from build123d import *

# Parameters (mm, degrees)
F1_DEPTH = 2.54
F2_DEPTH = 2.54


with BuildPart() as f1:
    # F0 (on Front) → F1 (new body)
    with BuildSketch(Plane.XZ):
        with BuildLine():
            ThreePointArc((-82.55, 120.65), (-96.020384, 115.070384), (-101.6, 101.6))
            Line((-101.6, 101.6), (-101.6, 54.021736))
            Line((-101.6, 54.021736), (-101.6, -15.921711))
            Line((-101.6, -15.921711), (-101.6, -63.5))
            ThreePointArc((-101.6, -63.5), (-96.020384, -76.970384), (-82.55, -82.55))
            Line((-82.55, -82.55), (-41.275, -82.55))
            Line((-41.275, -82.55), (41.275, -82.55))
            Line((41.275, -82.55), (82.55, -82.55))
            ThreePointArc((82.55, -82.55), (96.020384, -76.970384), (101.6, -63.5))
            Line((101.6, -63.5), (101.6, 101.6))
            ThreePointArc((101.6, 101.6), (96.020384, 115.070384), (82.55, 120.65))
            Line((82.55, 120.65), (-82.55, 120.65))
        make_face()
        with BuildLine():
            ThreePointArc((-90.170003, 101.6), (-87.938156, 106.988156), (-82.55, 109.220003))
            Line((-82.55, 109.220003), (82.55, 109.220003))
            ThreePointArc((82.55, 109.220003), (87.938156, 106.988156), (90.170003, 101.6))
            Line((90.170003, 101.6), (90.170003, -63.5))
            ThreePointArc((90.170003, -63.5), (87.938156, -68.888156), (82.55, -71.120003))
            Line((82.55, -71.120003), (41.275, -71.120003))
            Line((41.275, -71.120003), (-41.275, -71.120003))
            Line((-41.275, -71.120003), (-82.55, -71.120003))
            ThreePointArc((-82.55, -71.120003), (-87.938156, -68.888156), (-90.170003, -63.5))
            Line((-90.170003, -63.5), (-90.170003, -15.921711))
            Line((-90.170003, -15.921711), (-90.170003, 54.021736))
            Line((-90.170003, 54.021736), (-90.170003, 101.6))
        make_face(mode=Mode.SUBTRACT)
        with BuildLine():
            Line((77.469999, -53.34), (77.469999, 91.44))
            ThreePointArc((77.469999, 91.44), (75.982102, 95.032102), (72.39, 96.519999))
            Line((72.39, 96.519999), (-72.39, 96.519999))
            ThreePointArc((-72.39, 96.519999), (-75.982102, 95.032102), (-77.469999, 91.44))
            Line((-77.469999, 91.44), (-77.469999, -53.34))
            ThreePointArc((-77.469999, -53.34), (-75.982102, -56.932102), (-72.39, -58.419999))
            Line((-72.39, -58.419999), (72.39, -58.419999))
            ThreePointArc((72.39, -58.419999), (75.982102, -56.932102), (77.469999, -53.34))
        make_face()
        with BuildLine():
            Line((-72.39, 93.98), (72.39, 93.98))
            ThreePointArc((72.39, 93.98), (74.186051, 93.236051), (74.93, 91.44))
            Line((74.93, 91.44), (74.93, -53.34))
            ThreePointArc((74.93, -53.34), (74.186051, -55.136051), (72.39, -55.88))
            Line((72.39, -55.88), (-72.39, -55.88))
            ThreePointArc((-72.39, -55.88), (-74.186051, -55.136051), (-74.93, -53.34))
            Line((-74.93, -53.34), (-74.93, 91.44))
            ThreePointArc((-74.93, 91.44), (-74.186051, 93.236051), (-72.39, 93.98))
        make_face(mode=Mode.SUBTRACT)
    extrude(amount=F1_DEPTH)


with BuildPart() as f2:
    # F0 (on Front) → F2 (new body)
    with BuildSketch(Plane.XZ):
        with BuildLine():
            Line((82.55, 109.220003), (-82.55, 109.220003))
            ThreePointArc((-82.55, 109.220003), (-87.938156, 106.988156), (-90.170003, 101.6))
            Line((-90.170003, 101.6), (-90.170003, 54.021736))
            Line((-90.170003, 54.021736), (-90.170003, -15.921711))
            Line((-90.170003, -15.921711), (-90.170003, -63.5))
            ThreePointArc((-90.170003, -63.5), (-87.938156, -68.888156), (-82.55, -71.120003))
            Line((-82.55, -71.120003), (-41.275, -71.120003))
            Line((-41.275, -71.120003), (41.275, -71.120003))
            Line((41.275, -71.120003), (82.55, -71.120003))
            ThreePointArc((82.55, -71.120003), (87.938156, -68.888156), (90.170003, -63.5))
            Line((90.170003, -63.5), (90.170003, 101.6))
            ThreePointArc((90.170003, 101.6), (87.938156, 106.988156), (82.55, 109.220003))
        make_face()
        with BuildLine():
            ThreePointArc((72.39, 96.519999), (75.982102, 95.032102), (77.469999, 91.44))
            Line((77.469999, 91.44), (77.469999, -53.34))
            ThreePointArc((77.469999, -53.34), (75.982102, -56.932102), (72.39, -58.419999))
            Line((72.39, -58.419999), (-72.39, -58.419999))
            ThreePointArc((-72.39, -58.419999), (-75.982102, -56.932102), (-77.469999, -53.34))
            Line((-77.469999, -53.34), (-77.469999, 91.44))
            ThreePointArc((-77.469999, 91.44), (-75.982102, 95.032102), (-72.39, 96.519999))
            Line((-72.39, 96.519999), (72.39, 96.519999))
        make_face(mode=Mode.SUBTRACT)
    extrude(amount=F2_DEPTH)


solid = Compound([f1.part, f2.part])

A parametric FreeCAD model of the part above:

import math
import FreeCAD as App
import Part
import Sketcher

V = App.Vector
Q = App.Units.Quantity

doc = App.newDocument("Part")
body = doc.addObject("PartDesign::Body", "Body")
body.AllowCompound = True

# Sketch on XZ plane
sketch1 = body.newObject("Sketcher::SketchObject", "Sketch")
sketch1.AttachmentSupport = (doc.getObject("XZ_Plane"), [""])
sketch1.MapMode = "FlatFace"
sketch1.addGeometry([
    Part.ArcOfCircle(Part.Circle(V(-82.5, 101.6, 0), V(0, 0, 1), 19.1), math.radians(90), math.radians(180)),  # 0
    Part.LineSegment(V(-101.6, 101.6, 0), V(-101.6, -63.5, 0)),  # 1
    Part.ArcOfCircle(Part.Circle(V(-82.5, -63.5, 0), V(0, 0, 1), 19.1), math.radians(-180), math.radians(-90)),  # 2
    Part.LineSegment(V(-82.5, -82.5, 0), V(82.5, -82.5, 0)),  # 3
    Part.ArcOfCircle(Part.Circle(V(82.5, -63.5, 0), V(0, 0, 1), 19.1), math.radians(-90), math.radians(0)),  # 4
    Part.LineSegment(V(101.6, -63.5, 0), V(101.6, 101.6, 0)),  # 5
    Part.ArcOfCircle(Part.Circle(V(82.5, 101.6, 0), V(0, 0, 1), 19.1), math.radians(0), math.radians(90)),  # 6
    Part.LineSegment(V(82.5, 120.7, 0), V(-82.5, 120.7, 0)),  # 7
    Part.LineSegment(V(-90.2, -63.5, 0), V(-90.2, 101.6, 0)),  # 8
    Part.ArcOfCircle(Part.Circle(V(-82.6, 101.6, 0), V(0, 0, 1), 7.6), math.radians(90), math.radians(180)),  # 9
    Part.LineSegment(V(-82.5, 109.2, 0), V(82.5, 109.2, 0)),  # 10
    Part.ArcOfCircle(Part.Circle(V(82.6, 101.6, 0), V(0, 0, 1), 7.6), math.radians(0), math.radians(90)),  # 11
    Part.LineSegment(V(90.2, 101.6, 0), V(90.2, -63.5, 0)),  # 12
    Part.ArcOfCircle(Part.Circle(V(82.6, -63.5, 0), V(0, 0, 1), 7.6), math.radians(-90), math.radians(0)),  # 13
    Part.LineSegment(V(82.5, -71.1, 0), V(-82.5, -71.1, 0)),  # 14
    Part.ArcOfCircle(Part.Circle(V(-82.6, -63.5, 0), V(0, 0, 1), 7.6), math.radians(180), math.radians(270)),  # 15
    Part.LineSegment(V(77.5, -53.3, 0), V(77.5, 91.4, 0)),  # 16
    Part.ArcOfCircle(Part.Circle(V(72.4, 91.4, 0), V(0, 0, 1), 5.1), math.radians(0), math.radians(90)),  # 17
    Part.LineSegment(V(72.4, 96.5, 0), V(-72.4, 96.5, 0)),  # 18
    Part.ArcOfCircle(Part.Circle(V(-72.4, 91.4, 0), V(0, 0, 1), 5.1), math.radians(90), math.radians(180)),  # 19
    Part.LineSegment(V(-77.5, 91.4, 0), V(-77.5, -53.3, 0)),  # 20
    Part.ArcOfCircle(Part.Circle(V(-72.4, -53.3, 0), V(0, 0, 1), 5.1), math.radians(180), math.radians(270)),  # 21
    Part.LineSegment(V(-72.4, -58.4, 0), V(72.4, -58.4, 0)),  # 22
    Part.ArcOfCircle(Part.Circle(V(72.4, -53.3, 0), V(0, 0, 1), 5.1), math.radians(-90), math.radians(0)),  # 23
    Part.ArcOfCircle(Part.Circle(V(-72.4, 91.4, 0), V(0, 0, 1), 2.5), math.radians(90), math.radians(180)),  # 24
    Part.LineSegment(V(-72.4, 94, 0), V(72.4, 94, 0)),  # 25
    Part.ArcOfCircle(Part.Circle(V(72.4, 91.4, 0), V(0, 0, 1), 2.5), math.radians(0), math.radians(90)),  # 26
    Part.LineSegment(V(74.9, 91.4, 0), V(74.9, -53.3, 0)),  # 27
    Part.ArcOfCircle(Part.Circle(V(72.4, -53.3, 0), V(0, 0, 1), 2.5), math.radians(-90), math.radians(0)),  # 28
    Part.LineSegment(V(72.4, -55.9, 0), V(-72.4, -55.9, 0)),  # 29
    Part.ArcOfCircle(Part.Circle(V(-72.4, -53.3, 0), V(0, 0, 1), 2.5), math.radians(-180), math.radians(-90)),  # 30
    Part.LineSegment(V(-74.9, -53.3, 0), V(-74.9, 91.4, 0)),  # 31
], False)
sketch1.addConstraint([
    Sketcher.Constraint("Tangent", 0, 2, 1, 1),
    Sketcher.Constraint("Tangent", 1, 2, 2, 1),
    Sketcher.Constraint("Tangent", 2, 2, 3, 1),
    Sketcher.Constraint("Tangent", 3, 2, 4, 1),
    Sketcher.Constraint("Tangent", 4, 2, 5, 1),
    Sketcher.Constraint("Tangent", 5, 2, 6, 1),
    Sketcher.Constraint("Tangent", 6, 2, 7, 1),
    Sketcher.Constraint("Tangent", 7, 2, 0, 1),
    Sketcher.Constraint("Tangent", 8, 2, 9, 2),
    Sketcher.Constraint("Tangent", 9, 1, 10, 1),
    Sketcher.Constraint("Tangent", 10, 2, 11, 2),
    Sketcher.Constraint("Tangent", 11, 1, 12, 1),
    Sketcher.Constraint("Tangent", 12, 2, 13, 2),
    Sketcher.Constraint("Tangent", 13, 1, 14, 1),
    Sketcher.Constraint("Tangent", 14, 2, 15, 2),
    Sketcher.Constraint("Tangent", 15, 1, 8, 1),
    Sketcher.Constraint("Tangent", 16, 2, 17, 1),
    Sketcher.Constraint("Tangent", 17, 2, 18, 1),
    Sketcher.Constraint("Tangent", 18, 2, 19, 1),
    Sketcher.Constraint("Tangent", 19, 2, 20, 1),
    Sketcher.Constraint("Tangent", 20, 2, 21, 1),
    Sketcher.Constraint("Tangent", 21, 2, 22, 1),
    Sketcher.Constraint("Tangent", 22, 2, 23, 1),
    Sketcher.Constraint("Tangent", 23, 2, 16, 1),
    Sketcher.Constraint("Tangent", 24, 1, 25, 1),
    Sketcher.Constraint("Tangent", 25, 2, 26, 2),
    Sketcher.Constraint("Tangent", 26, 1, 27, 1),
    Sketcher.Constraint("Tangent", 27, 2, 28, 2),
    Sketcher.Constraint("Tangent", 28, 1, 29, 1),
    Sketcher.Constraint("Tangent", 29, 2, 30, 2),
    Sketcher.Constraint("Tangent", 30, 1, 31, 1),
    Sketcher.Constraint("Tangent", 31, 2, 24, 2),
    Sketcher.Constraint("Vertical", 1),
    Sketcher.Constraint("Horizontal", 3),
    Sketcher.Constraint("Vertical", 5),
    Sketcher.Constraint("Horizontal", 7),
    Sketcher.Constraint("Vertical", 8),
    Sketcher.Constraint("Horizontal", 10),
    Sketcher.Constraint("Vertical", 12),
    Sketcher.Constraint("Horizontal", 14),
    Sketcher.Constraint("Vertical", 16),
    Sketcher.Constraint("Horizontal", 18),
    Sketcher.Constraint("Vertical", 20),
    Sketcher.Constraint("Horizontal", 22),
    Sketcher.Constraint("Horizontal", 25),
    Sketcher.Constraint("Vertical", 27),
    Sketcher.Constraint("Horizontal", 29),
    Sketcher.Constraint("Vertical", 31),
    Sketcher.Constraint("Coincident", 9, 3, 0, 3),
    Sketcher.Constraint("Coincident", 11, 3, 6, 3),
    Sketcher.Constraint("Coincident", 13, 3, 4, 3),
    Sketcher.Constraint("Coincident", 24, 3, 19, 3),
    Sketcher.Constraint("Coincident", 26, 3, 17, 3),
    Sketcher.Constraint("Coincident", 28, 3, 23, 3),
    Sketcher.Constraint("Equal", 0, 2),
    Sketcher.Constraint("Equal", 2, 4),
    Sketcher.Constraint("Equal", 4, 6),
    Sketcher.Constraint("Equal", 13, 15),
    Sketcher.Constraint("Equal", 17, 19),
    Sketcher.Constraint("Equal", 19, 21),
    Sketcher.Constraint("Equal", 21, 23),
    Sketcher.Constraint("Equal", 28, 30),
    Sketcher.Constraint("Equal", 14, 1),
    Sketcher.Constraint("Equal", 29, 16),
    Sketcher.Constraint("Radius", 9, Q("0.3000001 in")),
    Sketcher.Constraint("Radius", 17, Q("0.1999999 in")),
    Sketcher.Constraint("Radius", 24, Q("0.1 in")),
    Sketcher.Constraint("Radius", 0, Q("0.75 in")),
    Sketcher.Constraint("DistanceX", 3, 1, 3, 2, Q("6.5 in")),
    Sketcher.Constraint("DistanceX", 18, 2, 18, 1, Q("5.7 in")),
    Sketcher.Constraint("DistanceY", -1, 1, 0, 3, Q("4 in")),
    Sketcher.Constraint("DistanceX", 0, 2, -1, 1, Q("4 in")),
    Sketcher.Constraint("DistanceY", -1, 1, 17, 3, Q("3.6 in")),
    Sketcher.Constraint("DistanceX", 17, 3, 6, 3, Q("0.3999999 in")),
])
pad1 = body.newObject("PartDesign::Pad", "Pad")
pad1.Profile = sketch1
pad1.Length = Q("0.1 in")
body2 = doc.addObject("PartDesign::Body", "Body001")

# Sketch on XZ plane
sketch2 = body2.newObject("Sketcher::SketchObject", "Sketch001")
sketch2.AttachmentSupport = (doc.getObject("XZ_Plane001"), [""])
sketch2.MapMode = "FlatFace"
sketch2.addGeometry([
    Part.LineSegment(V(83, 109, 0), V(-83, 109, 0)),  # 0
    Part.ArcOfCircle(Part.Circle(V(-83, 102, 0), V(0, 0, 1), 8), math.radians(90), math.radians(180)),  # 1
    Part.LineSegment(V(-90, 102, 0), V(-90, -64, 0)),  # 2
    Part.ArcOfCircle(Part.Circle(V(-83, -64, 0), V(0, 0, 1), 8), math.radians(180), math.radians(270)),  # 3
    Part.LineSegment(V(-83, -71, 0), V(83, -71, 0)),  # 4
    Part.ArcOfCircle(Part.Circle(V(83, -64, 0), V(0, 0, 1), 8), math.radians(-90), math.radians(0)),  # 5
    Part.LineSegment(V(90, -64, 0), V(90, 102, 0)),  # 6
    Part.ArcOfCircle(Part.Circle(V(83, 102, 0), V(0, 0, 1), 8), math.radians(0), math.radians(90)),  # 7
    Part.LineSegment(V(-72, 97, 0), V(72, 97, 0)),  # 8
    Part.ArcOfCircle(Part.Circle(V(72, 91, 0), V(0, 0, 1), 5), math.radians(0), math.radians(90)),  # 9
    Part.LineSegment(V(77, 91, 0), V(77, -53, 0)),  # 10
    Part.ArcOfCircle(Part.Circle(V(72, -53, 0), V(0, 0, 1), 5), math.radians(-90), math.radians(0)),  # 11
    Part.LineSegment(V(72, -58, 0), V(-72, -58, 0)),  # 12
    Part.ArcOfCircle(Part.Circle(V(-72, -53, 0), V(0, 0, 1), 5), math.radians(180), math.radians(270)),  # 13
    Part.LineSegment(V(-77, -53, 0), V(-77, 91, 0)),  # 14
    Part.ArcOfCircle(Part.Circle(V(-72, 91, 0), V(0, 0, 1), 5), math.radians(90), math.radians(180)),  # 15
], False)
sketch2.addConstraint([
    Sketcher.Constraint("Tangent", 0, 2, 1, 1),
    Sketcher.Constraint("Tangent", 1, 2, 2, 1),
    Sketcher.Constraint("Tangent", 2, 2, 3, 1),
    Sketcher.Constraint("Tangent", 3, 2, 4, 1),
    Sketcher.Constraint("Tangent", 4, 2, 5, 1),
    Sketcher.Constraint("Tangent", 5, 2, 6, 1),
    Sketcher.Constraint("Tangent", 6, 2, 7, 1),
    Sketcher.Constraint("Tangent", 7, 2, 0, 1),
    Sketcher.Constraint("Tangent", 8, 2, 9, 2),
    Sketcher.Constraint("Tangent", 9, 1, 10, 1),
    Sketcher.Constraint("Tangent", 10, 2, 11, 2),
    Sketcher.Constraint("Tangent", 11, 1, 12, 1),
    Sketcher.Constraint("Tangent", 12, 2, 13, 2),
    Sketcher.Constraint("Tangent", 13, 1, 14, 1),
    Sketcher.Constraint("Tangent", 14, 2, 15, 2),
    Sketcher.Constraint("Tangent", 15, 1, 8, 1),
    Sketcher.Constraint("Horizontal", 0),
    Sketcher.Constraint("Vertical", 2),
    Sketcher.Constraint("Horizontal", 4),
    Sketcher.Constraint("Vertical", 6),
    Sketcher.Constraint("Horizontal", 8),
    Sketcher.Constraint("Vertical", 10),
    Sketcher.Constraint("Horizontal", 12),
    Sketcher.Constraint("Vertical", 14),
    Sketcher.Constraint("Equal", 1, 3),
    Sketcher.Constraint("Equal", 3, 5),
    Sketcher.Constraint("Equal", 5, 7),
    Sketcher.Constraint("Equal", 9, 11),
    Sketcher.Constraint("Equal", 11, 13),
    Sketcher.Constraint("Equal", 13, 15),
    Sketcher.Constraint("Equal", 4, 2),
    Sketcher.Constraint("Equal", 12, 10),
    Sketcher.Constraint("Radius", 1, Q("0.3000001 in")),
    Sketcher.Constraint("Radius", 9, Q("0.1999999 in")),
    Sketcher.Constraint("DistanceX", 0, 2, 0, 1, Q("6.5 in")),
    Sketcher.Constraint("DistanceX", 8, 1, 8, 2, Q("5.7 in")),
    Sketcher.Constraint("DistanceY", -1, 1, 1, 3, Q("4 in")),
    Sketcher.Constraint("DistanceY", -1, 1, 9, 3, Q("3.6 in")),
    Sketcher.Constraint("DistanceX", 9, 3, 7, 3, Q("0.4 in")),
    Sketcher.Constraint("DistanceX", 1, 3, -1, 1, Q("3.25 in")),
])
pad2 = body2.newObject("PartDesign::Pad", "Pad001")
pad2.Profile = sketch2
pad2.Length = Q("0.1 in")

doc.recompute()
